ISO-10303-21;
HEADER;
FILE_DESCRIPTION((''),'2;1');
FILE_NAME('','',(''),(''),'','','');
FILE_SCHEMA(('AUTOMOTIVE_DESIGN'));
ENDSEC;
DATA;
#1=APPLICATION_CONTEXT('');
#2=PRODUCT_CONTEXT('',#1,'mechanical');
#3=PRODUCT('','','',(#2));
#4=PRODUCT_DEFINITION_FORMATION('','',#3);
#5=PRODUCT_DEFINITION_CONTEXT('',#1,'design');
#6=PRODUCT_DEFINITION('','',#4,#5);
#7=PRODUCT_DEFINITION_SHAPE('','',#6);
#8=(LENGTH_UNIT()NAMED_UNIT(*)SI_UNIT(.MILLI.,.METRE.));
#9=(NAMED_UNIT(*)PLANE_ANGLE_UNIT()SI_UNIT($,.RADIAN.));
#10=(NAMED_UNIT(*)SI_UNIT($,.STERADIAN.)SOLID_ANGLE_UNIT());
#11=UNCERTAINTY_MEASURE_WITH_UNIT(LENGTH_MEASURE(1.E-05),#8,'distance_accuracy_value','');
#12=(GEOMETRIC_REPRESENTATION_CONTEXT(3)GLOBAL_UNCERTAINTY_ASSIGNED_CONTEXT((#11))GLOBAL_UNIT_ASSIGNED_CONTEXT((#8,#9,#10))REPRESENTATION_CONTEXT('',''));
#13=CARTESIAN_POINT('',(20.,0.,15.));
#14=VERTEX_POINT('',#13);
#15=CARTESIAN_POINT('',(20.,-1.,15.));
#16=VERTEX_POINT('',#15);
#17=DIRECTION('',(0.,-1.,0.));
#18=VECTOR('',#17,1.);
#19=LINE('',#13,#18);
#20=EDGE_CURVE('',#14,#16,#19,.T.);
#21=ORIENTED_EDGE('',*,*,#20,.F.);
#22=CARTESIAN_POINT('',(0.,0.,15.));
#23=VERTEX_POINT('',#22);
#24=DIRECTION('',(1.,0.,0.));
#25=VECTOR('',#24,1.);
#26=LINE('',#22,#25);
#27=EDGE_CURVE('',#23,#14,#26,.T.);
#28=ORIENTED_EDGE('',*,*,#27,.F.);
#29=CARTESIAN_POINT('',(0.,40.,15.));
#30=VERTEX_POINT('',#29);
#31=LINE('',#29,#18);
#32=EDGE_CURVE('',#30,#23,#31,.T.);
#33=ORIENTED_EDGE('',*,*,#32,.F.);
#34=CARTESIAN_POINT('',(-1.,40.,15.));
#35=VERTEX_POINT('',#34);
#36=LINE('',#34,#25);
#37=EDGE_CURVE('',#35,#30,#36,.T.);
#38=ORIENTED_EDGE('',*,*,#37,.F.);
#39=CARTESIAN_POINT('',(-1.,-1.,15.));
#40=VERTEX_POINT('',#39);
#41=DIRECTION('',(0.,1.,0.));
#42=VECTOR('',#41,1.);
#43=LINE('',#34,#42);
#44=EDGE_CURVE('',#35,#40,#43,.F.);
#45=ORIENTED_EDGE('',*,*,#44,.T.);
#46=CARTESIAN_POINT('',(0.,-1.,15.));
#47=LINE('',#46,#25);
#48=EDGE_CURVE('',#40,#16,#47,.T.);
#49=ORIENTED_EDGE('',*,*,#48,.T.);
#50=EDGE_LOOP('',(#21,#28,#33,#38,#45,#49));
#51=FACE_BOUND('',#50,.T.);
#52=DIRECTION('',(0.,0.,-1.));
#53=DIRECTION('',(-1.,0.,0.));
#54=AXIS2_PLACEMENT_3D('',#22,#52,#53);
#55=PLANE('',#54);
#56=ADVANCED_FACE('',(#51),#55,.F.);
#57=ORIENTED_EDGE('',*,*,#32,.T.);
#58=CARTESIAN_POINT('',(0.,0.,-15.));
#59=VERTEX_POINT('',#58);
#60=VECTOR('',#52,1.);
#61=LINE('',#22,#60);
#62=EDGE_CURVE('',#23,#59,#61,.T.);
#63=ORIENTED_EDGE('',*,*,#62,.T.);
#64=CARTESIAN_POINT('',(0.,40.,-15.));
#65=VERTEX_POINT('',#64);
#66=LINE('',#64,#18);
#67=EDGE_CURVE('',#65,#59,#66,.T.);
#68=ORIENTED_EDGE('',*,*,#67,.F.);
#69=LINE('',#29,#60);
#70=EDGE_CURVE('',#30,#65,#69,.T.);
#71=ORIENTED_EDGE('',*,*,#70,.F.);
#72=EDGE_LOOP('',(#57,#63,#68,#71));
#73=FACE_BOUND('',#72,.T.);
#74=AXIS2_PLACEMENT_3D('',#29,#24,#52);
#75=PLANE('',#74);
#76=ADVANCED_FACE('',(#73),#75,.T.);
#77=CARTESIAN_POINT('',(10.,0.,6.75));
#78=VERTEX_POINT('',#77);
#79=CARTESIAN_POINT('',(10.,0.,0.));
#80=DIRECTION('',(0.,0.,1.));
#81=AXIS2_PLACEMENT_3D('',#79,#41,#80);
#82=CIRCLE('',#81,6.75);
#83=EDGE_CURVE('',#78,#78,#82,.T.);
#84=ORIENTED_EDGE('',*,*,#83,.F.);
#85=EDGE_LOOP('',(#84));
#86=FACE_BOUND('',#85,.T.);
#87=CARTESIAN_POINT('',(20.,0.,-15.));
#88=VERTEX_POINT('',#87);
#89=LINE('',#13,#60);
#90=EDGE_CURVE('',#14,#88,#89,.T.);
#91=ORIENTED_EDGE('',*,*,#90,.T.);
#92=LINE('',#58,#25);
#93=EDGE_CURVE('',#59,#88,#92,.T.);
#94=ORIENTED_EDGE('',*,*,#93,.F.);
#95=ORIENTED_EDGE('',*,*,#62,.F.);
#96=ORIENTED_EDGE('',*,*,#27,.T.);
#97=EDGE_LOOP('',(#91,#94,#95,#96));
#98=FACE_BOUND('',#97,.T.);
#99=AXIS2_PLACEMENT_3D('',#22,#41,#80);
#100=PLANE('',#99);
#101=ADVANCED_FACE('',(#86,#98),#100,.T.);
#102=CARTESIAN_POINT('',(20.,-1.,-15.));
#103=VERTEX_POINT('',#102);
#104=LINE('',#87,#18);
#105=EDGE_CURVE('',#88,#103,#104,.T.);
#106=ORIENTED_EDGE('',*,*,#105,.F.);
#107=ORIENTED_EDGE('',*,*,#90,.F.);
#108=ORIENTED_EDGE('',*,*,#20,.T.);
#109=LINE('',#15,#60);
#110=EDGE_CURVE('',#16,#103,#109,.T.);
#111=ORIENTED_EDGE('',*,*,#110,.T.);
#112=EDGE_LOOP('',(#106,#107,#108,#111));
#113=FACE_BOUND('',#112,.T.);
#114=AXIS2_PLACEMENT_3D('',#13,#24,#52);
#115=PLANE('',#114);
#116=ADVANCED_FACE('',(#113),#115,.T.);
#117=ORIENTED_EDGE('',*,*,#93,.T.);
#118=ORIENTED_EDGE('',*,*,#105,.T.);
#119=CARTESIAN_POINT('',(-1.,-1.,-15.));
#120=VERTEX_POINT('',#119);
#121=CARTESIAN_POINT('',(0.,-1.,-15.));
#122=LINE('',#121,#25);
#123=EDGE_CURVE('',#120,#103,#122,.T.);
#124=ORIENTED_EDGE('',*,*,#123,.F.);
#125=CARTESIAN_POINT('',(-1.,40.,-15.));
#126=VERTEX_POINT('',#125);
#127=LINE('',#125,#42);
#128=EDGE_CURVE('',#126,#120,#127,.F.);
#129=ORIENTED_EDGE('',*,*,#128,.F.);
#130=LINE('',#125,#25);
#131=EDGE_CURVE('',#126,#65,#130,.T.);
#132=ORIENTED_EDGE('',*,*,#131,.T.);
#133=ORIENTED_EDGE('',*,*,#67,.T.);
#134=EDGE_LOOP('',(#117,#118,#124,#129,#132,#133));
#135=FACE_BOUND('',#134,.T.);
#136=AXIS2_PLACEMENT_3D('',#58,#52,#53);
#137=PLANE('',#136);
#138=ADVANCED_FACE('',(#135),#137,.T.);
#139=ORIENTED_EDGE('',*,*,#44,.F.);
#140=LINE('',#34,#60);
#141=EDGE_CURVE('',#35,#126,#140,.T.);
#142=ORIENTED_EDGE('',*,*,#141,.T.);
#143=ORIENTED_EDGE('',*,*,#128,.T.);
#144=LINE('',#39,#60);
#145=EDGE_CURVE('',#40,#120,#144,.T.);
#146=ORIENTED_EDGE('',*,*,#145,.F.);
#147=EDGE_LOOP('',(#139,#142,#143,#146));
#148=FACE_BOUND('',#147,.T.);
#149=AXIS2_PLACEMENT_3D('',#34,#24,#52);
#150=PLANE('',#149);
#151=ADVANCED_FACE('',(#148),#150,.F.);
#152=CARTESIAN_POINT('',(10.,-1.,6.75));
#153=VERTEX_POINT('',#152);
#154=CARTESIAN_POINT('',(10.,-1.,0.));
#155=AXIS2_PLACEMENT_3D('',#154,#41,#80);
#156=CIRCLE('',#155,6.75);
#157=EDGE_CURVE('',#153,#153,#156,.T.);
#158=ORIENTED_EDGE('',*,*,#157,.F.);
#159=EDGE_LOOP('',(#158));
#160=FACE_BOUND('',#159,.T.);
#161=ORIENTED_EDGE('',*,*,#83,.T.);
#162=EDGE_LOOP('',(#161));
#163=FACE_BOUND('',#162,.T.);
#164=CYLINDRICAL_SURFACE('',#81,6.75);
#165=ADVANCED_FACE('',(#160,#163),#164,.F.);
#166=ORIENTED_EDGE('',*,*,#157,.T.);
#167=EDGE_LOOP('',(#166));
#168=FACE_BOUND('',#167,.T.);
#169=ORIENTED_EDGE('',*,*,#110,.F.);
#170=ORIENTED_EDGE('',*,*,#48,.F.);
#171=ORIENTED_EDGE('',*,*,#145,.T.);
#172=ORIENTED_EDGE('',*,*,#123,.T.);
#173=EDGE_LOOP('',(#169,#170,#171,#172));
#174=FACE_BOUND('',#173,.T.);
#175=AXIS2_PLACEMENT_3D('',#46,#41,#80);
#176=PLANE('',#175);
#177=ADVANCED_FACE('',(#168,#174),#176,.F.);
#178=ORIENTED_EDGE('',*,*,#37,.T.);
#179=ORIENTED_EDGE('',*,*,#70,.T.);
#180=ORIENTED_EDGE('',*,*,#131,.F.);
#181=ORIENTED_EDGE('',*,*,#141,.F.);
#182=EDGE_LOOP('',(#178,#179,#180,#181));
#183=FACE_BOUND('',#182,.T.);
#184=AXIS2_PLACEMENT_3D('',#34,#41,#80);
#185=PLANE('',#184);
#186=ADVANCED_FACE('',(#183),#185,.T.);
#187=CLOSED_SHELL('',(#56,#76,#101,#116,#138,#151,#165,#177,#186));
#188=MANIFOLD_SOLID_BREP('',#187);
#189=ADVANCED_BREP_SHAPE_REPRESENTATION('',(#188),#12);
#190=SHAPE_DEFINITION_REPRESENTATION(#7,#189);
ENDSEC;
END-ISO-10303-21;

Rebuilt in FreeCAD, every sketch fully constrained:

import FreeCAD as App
import Part
import Sketcher
Q = App.Units.Quantity

doc = App.newDocument("Part")
params = doc.addObject("Spreadsheet::Sheet", "Params")
for row, (alias, value) in enumerate([
    ("sketch1_width", "1 mm"),
    ("sketch1_width2", "21 mm"),
    ("sketch1_height", "40 mm"),
    ("pad1_length", "30 mm"),
    ("sketch2_diameter", "13.5 mm"),
    ("hole_diameter", "13.5 mm"),
    ("hole_depth", "1 mm"),
], start=1):
    params.set(f"A{row}", alias)
    params.set(f"B{row}", "=" + value)
    params.setAlias(f"B{row}", alias)

body = doc.addObject("PartDesign::Body", "Body")

sketch1 = doc.addObject("Sketcher::SketchObject", "Sketch")
body.addObject(sketch1)
sketch1.AttachmentSupport = (doc.XY_Plane, [""])
sketch1.MapMode = "FlatFace"
sketch1.addGeometry([
    Part.LineSegment(App.Vector(0, 0, 0), App.Vector(0, 40, 0)),
    Part.LineSegment(App.Vector(0, 40, 0), App.Vector(-1, 40, 0)),
    Part.LineSegment(App.Vector(-1, 40, 0), App.Vector(-1, -1, 0)),
    Part.LineSegment(App.Vector(-1, -1, 0), App.Vector(20, -1, 0)),
    Part.LineSegment(App.Vector(20, -1, 0), App.Vector(20, 0, 0)),
    Part.LineSegment(App.Vector(20, 0, 0), App.Vector(0, 0, 0)),
], False)
sketch1.addConstraint([
    Sketcher.Constraint("Coincident", 0, 2, 1, 1),
    Sketcher.Constraint("Coincident", 1, 2, 2, 1),
    Sketcher.Constraint("Coincident", 2, 2, 3, 1),
    Sketcher.Constraint("Coincident", 3, 2, 4, 1),
    Sketcher.Constraint("Coincident", 4, 2, 5, 1),
    Sketcher.Constraint("Coincident", 5, 2, 0, 1),
    Sketcher.Constraint("Vertical", 0),
    Sketcher.Constraint("Horizontal", 1),
    Sketcher.Constraint("Vertical", 2),
    Sketcher.Constraint("Horizontal", 3),
    Sketcher.Constraint("Vertical", 4),
    Sketcher.Constraint("Horizontal", 5),
    Sketcher.Constraint("Coincident", 5, 2, -1, 1),
    Sketcher.Constraint("Equal", 1, 4),
    Sketcher.Constraint("DistanceX", 1, 2, 1, 1, Q("1 mm")),
    Sketcher.Constraint("DistanceX", 3, 1, 3, 2, Q("21 mm")),
    Sketcher.Constraint("DistanceY", 0, 1, 0, 2, Q("40 mm")),
])
sketch1.setExpression("Constraints[14]", "Params.sketch1_width")
sketch1.setExpression("Constraints[15]", "Params.sketch1_width2")
sketch1.setExpression("Constraints[16]", "Params.sketch1_height")
pad1 = doc.addObject("PartDesign::Pad", "Pad")
body.addObject(pad1)
pad1.Profile = sketch1
pad1.setExpression("Length", "Params.pad1_length")
pad1.Midplane = True

sketch2 = doc.addObject("Sketcher::SketchObject", "Sketch001")
body.addObject(sketch2)
sketch2.AttachmentSupport = (doc.XZ_Plane, [""])
sketch2.MapMode = "FlatFace"
sketch2.addGeometry(Part.Circle(App.Vector(10, 0, 0), App.Vector(0, 0, 1), 7), False)
sketch2.addConstraint([
    Sketcher.Constraint("PointOnObject", 0, 3, -1),
    Sketcher.Constraint("Diameter", 0, Q("13.5 mm")),
    Sketcher.Constraint("DistanceX", -1, 1, 0, 3, Q("10 mm")),
])
sketch2.setExpression("Constraints[1]", "Params.sketch2_diameter")
doc.recompute()
hole = doc.addObject("PartDesign::Hole", "Hole")
body.addObject(hole)
hole.Profile = sketch2
hole.ThreadType = "None"
hole.setExpression("Diameter", "Params.hole_diameter")
hole.DepthType = "Dimension"
hole.setExpression("Depth", "Params.hole_depth")
hole.DrillPoint = "Flat"
hole.Reversed = True

doc.recompute()
